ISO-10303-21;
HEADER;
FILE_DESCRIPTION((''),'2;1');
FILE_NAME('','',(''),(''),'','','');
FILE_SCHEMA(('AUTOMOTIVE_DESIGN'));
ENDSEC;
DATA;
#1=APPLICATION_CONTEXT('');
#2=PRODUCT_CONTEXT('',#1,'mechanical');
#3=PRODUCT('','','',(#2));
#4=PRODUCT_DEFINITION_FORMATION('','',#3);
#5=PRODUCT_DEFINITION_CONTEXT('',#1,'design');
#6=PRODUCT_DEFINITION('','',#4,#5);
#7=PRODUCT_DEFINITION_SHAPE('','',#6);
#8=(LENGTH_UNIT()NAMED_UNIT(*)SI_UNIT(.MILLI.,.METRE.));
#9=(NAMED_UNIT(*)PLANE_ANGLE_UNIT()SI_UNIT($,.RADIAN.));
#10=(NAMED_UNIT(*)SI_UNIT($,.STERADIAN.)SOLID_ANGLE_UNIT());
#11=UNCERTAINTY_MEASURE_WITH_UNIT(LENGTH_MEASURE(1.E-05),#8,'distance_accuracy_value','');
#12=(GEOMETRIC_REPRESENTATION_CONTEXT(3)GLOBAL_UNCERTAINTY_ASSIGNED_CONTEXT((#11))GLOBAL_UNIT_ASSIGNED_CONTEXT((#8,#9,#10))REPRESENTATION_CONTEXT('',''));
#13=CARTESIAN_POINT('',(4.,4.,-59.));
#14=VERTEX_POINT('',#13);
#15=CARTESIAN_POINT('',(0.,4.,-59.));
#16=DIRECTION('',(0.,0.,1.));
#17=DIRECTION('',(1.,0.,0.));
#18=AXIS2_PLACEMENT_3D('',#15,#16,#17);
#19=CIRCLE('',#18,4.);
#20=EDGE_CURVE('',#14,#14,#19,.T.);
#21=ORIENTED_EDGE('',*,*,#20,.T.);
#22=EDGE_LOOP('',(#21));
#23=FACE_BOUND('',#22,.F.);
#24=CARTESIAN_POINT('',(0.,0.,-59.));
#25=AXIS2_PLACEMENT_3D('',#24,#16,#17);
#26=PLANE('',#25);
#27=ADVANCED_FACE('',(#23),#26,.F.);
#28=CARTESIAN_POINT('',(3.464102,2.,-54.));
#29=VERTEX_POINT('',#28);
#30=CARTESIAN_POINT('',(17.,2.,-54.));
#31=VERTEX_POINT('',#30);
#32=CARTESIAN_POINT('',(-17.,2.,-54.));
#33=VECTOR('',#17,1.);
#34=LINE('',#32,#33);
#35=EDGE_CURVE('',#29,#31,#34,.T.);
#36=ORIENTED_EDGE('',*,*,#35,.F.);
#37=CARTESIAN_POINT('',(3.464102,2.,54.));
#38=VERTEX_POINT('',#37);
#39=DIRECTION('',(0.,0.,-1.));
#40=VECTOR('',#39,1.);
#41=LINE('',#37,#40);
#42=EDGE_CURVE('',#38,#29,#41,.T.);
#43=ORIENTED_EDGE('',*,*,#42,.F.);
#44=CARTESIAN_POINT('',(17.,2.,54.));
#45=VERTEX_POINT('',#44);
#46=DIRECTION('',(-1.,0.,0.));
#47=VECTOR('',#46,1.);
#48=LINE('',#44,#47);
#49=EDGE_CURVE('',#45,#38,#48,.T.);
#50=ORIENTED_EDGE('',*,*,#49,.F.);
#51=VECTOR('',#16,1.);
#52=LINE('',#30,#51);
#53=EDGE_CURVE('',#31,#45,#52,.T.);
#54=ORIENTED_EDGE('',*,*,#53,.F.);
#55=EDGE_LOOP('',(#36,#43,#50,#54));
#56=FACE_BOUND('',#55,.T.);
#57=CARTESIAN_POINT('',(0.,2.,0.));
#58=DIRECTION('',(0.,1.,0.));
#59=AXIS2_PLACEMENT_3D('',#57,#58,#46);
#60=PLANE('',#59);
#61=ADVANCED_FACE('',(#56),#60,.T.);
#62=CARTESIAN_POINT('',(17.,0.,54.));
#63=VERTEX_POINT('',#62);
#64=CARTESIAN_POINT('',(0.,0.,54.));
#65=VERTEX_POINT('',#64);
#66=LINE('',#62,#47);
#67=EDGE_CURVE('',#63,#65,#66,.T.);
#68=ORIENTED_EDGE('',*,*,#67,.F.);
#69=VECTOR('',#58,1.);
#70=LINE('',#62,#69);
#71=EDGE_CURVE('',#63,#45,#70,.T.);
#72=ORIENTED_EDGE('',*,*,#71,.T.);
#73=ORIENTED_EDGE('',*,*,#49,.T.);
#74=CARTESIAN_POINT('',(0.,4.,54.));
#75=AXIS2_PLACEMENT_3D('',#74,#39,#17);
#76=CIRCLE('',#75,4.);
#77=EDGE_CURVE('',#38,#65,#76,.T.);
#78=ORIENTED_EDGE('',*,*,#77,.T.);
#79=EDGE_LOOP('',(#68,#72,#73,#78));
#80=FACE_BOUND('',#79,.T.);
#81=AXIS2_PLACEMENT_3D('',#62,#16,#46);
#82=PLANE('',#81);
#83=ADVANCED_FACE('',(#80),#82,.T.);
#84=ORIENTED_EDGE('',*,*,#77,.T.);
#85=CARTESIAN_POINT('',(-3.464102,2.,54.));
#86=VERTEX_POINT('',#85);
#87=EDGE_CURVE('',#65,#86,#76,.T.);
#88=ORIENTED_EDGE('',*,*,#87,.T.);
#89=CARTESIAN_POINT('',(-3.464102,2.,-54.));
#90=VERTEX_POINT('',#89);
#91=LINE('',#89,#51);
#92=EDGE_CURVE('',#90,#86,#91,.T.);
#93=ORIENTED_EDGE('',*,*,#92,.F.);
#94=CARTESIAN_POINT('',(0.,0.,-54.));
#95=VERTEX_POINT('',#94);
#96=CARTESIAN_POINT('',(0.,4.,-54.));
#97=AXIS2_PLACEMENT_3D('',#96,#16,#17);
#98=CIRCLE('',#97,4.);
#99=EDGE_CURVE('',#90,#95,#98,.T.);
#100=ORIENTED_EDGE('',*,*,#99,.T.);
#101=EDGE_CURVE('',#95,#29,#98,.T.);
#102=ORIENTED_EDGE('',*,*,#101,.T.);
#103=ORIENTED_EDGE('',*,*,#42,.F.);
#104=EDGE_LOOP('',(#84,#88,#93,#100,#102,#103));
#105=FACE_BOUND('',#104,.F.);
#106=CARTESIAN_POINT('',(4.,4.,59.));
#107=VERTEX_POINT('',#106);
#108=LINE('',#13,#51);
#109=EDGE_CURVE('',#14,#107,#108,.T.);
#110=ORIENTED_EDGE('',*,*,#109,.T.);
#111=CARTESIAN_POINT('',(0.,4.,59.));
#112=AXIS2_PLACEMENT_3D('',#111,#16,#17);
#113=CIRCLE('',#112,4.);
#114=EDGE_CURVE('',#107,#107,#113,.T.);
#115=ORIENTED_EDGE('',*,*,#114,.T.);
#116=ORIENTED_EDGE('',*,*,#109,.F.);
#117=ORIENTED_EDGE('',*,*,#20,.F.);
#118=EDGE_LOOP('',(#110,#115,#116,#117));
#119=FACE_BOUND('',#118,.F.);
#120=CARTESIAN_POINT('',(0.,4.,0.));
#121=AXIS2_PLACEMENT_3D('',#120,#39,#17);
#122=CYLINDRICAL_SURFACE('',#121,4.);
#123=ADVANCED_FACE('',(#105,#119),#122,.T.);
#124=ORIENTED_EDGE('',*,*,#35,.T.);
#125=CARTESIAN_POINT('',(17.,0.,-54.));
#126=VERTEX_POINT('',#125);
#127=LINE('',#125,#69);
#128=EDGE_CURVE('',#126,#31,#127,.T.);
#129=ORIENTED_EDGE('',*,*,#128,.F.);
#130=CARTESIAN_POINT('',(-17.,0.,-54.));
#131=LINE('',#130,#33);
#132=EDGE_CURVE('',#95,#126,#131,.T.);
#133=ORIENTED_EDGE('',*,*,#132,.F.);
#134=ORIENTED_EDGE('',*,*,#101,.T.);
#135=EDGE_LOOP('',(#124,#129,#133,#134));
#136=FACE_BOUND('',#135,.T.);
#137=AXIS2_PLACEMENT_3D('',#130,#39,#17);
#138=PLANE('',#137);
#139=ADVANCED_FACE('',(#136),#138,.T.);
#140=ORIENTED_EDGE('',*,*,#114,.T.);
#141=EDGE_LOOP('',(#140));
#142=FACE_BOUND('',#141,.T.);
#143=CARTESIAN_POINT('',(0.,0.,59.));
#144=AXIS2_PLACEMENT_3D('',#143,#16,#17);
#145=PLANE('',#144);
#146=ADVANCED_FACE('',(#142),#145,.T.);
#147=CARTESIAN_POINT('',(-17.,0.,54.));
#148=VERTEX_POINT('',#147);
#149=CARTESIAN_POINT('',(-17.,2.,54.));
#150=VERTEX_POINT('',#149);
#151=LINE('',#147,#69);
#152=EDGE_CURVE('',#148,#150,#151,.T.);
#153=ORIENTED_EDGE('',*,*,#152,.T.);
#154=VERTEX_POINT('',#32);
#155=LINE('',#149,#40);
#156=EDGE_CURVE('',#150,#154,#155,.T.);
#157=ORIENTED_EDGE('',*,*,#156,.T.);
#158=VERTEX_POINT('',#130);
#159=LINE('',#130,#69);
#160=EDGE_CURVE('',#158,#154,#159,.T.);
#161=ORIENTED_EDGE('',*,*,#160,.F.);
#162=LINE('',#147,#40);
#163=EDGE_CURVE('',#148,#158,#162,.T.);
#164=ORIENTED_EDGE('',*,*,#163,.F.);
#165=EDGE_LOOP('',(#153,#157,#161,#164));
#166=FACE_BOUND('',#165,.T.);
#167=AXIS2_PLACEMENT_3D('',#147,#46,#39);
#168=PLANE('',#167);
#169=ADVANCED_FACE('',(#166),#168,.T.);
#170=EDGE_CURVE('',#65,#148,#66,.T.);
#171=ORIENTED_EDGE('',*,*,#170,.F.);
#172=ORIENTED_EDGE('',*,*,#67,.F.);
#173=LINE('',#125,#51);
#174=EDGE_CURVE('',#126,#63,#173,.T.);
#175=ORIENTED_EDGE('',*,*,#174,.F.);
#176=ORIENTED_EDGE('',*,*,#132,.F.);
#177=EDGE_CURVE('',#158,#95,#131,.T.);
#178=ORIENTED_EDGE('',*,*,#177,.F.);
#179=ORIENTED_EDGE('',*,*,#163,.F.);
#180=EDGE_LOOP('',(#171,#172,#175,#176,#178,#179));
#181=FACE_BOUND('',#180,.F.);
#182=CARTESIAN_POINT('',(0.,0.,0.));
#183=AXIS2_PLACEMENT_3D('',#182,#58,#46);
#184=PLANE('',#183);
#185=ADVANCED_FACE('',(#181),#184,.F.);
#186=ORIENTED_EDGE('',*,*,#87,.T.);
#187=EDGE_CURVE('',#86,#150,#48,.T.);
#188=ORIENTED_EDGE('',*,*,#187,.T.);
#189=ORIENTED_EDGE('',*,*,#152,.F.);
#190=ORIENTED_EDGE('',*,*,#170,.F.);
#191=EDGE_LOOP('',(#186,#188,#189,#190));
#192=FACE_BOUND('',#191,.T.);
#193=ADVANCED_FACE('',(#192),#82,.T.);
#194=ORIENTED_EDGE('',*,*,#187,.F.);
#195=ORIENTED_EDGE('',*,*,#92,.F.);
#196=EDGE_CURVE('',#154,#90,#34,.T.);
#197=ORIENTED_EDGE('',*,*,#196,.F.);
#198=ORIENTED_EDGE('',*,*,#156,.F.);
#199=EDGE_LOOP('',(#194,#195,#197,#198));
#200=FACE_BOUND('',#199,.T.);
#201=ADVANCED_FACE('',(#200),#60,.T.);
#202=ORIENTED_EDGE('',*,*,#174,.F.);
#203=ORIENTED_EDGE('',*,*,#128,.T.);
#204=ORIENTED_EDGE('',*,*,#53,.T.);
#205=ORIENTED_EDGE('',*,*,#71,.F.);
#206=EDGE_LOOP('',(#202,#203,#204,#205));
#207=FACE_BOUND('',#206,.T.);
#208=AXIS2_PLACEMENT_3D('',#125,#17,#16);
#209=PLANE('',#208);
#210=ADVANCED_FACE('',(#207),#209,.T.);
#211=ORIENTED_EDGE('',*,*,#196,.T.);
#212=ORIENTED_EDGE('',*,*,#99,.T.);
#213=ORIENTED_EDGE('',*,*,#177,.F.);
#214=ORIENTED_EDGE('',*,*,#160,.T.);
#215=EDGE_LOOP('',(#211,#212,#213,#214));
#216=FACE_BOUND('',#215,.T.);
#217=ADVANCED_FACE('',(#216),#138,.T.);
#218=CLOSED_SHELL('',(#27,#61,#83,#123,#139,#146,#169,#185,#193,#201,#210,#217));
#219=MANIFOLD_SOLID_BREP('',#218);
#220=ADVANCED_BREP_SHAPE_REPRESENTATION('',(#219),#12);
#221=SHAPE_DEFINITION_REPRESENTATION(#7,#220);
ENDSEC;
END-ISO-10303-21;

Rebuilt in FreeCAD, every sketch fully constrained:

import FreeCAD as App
import Part
import Sketcher


def add_polygon(sketch, points):
    """Adds a closed chain of lines whose ends are joined by coincident constraints."""
    first, n = sketch.GeometryCount, len(points)
    for a, b in zip(points, points[1:] + points[:1]):
        sketch.addGeometry(Part.LineSegment(App.Vector(*a, 0), App.Vector(*b, 0)), False)
    for i in range(n):
        sketch.addConstraint(Sketcher.Constraint("Coincident", first + i, 2, first + (i + 1) % n, 1))

doc = App.newDocument("Part")
body = doc.addObject("PartDesign::Body", "Body")

# Sketch on XZ plane
sketch1 = body.newObject("Sketcher::SketchObject", "Sketch")
sketch1.AttachmentSupport = (doc.getObject("XZ_Plane"), [""])
sketch1.MapMode = "FlatFace"
add_polygon(sketch1, [(-17, 54), (17, 54), (17, -54), (-17, -54)])  # lines 0-3
sketch1.addConstraint([
    Sketcher.Constraint("Horizontal", 0),
    Sketcher.Constraint("Vertical", 1),
    Sketcher.Constraint("Horizontal", 2),
    Sketcher.Constraint("Vertical", 3),
    Sketcher.Constraint("Symmetric", 0, 2, 2, 2, -1, 1),
    Sketcher.Constraint("DistanceX", 0, 1, 0, 2, 34.0),
    Sketcher.Constraint("DistanceY", 1, 2, 1, 1, 108.0),
])
pad1 = body.newObject("PartDesign::Pad", "Pad")
pad1.Profile = sketch1
pad1.Length = 2
pad1.Reversed = True

# Sketch on XY plane
sketch2 = body.newObject("Sketcher::SketchObject", "Sketch001")
sketch2.AttachmentSupport = (doc.getObject("XY_Plane"), [""])
sketch2.MapMode = "FlatFace"
sketch2.addGeometry(Part.Circle(App.Vector(0, 4, 0), App.Vector(0, 0, 1), 4), False)
sketch2.addConstraint([
    Sketcher.Constraint("PointOnObject", 0, 3, -2),
    Sketcher.Constraint("Diameter", 0, 8.0),
    Sketcher.Constraint("DistanceY", -1, 1, 0, 3, 4.0),
])
pad2 = body.newObject("PartDesign::Pad", "Pad001")
pad2.Profile = sketch2
pad2.Length = 118
pad2.Midplane = True

doc.recompute()
